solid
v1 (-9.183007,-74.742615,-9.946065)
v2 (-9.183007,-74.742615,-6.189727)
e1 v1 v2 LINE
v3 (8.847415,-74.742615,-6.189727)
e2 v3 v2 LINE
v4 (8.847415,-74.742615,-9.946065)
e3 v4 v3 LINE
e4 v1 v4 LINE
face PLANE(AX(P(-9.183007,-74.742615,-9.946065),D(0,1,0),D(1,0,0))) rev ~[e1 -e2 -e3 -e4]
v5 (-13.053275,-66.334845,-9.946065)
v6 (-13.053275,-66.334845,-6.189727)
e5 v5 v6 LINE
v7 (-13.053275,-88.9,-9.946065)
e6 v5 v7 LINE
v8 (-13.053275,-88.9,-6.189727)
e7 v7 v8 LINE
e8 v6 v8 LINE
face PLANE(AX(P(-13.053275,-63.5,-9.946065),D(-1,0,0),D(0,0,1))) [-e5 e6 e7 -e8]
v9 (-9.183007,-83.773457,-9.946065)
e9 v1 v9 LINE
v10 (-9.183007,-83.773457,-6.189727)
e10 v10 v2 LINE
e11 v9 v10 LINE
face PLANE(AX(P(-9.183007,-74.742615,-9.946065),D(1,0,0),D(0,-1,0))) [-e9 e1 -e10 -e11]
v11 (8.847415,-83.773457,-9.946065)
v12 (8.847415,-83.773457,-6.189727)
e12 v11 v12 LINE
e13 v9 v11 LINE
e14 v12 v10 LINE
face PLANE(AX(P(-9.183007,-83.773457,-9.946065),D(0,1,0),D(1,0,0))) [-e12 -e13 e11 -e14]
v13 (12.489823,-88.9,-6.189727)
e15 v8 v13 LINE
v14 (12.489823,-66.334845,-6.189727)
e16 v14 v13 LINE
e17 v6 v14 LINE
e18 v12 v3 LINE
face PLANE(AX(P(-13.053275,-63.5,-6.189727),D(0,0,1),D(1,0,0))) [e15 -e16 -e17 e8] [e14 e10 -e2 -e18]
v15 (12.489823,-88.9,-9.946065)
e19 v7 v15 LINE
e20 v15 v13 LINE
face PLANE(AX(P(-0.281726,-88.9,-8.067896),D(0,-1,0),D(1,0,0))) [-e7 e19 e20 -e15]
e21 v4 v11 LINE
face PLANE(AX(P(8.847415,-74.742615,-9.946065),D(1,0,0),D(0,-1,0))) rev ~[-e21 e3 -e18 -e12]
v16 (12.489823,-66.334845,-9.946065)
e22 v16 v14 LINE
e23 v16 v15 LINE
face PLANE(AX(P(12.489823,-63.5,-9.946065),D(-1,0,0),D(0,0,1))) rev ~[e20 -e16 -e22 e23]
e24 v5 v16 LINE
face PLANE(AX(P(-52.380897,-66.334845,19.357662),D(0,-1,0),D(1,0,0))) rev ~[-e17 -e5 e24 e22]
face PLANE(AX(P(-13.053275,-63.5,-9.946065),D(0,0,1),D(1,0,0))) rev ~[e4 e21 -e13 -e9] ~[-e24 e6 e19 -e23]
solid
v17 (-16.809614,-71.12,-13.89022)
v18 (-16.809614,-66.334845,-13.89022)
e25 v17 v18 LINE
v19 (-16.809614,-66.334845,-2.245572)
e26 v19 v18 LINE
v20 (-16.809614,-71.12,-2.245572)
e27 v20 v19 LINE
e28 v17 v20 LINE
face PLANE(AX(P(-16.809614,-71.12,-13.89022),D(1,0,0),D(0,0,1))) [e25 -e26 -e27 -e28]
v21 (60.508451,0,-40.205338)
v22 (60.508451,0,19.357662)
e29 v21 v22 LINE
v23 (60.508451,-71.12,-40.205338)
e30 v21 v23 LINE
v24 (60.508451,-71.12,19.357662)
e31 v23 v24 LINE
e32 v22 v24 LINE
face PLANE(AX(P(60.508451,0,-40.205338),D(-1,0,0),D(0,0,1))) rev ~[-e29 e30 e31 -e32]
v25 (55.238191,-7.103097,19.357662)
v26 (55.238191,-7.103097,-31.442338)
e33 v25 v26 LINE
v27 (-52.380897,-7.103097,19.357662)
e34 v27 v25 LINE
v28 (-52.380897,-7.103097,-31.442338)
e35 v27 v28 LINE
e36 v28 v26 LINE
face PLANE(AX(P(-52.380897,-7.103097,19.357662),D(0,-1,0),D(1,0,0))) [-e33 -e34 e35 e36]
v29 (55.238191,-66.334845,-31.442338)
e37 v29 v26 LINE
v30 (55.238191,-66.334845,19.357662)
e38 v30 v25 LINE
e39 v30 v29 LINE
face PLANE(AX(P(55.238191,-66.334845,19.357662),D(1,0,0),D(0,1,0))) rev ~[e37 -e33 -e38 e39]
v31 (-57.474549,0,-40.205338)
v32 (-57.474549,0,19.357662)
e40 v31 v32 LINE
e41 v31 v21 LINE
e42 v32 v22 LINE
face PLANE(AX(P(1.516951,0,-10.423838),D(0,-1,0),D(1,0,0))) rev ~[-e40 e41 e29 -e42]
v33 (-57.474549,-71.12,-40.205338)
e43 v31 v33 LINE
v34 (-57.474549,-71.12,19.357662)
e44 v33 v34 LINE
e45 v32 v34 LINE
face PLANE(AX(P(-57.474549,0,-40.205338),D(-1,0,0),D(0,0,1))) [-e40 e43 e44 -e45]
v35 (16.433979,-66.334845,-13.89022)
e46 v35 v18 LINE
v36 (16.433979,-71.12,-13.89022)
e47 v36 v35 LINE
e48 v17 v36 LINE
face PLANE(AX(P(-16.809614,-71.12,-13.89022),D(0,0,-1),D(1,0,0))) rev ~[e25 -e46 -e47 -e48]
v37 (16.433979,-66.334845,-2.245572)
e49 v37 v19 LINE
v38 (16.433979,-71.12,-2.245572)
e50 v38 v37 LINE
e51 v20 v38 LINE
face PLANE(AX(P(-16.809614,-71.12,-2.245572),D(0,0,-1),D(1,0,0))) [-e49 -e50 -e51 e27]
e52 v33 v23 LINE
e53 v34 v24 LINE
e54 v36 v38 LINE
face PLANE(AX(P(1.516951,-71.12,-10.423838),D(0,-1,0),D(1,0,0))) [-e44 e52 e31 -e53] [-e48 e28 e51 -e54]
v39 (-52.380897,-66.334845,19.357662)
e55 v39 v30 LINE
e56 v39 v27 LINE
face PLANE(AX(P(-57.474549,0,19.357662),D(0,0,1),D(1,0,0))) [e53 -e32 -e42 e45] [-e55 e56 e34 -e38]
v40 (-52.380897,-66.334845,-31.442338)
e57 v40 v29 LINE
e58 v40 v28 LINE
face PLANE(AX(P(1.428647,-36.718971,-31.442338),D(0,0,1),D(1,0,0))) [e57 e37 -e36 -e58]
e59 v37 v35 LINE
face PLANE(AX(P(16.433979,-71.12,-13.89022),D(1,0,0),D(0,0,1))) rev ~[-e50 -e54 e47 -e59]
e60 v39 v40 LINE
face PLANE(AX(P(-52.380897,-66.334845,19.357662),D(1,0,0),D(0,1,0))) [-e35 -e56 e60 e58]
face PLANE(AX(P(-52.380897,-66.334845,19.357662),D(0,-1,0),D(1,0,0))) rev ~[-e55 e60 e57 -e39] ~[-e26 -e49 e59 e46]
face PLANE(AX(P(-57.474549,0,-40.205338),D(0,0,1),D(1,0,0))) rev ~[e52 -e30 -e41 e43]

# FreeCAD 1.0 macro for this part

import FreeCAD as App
import Part
import Sketcher
from FreeCAD import Vector
Q = App.Units.Quantity


def add_polygon(sketch, points):
    """Adds a closed chain of lines whose ends are joined by coincident constraints."""
    first, n = sketch.GeometryCount, len(points)
    for a, b in zip(points, points[1:] + points[:1]):
        sketch.addGeometry(Part.LineSegment(App.Vector(*a, 0), App.Vector(*b, 0)), False)
    for i in range(n):
        sketch.addConstraint(Sketcher.Constraint("Coincident", first + i, 2, first + (i + 1) % n, 1))

doc = App.newDocument("Part")
params = doc.addObject("Spreadsheet::Sheet", "Params")
for row, (alias, value) in enumerate([
    ("sketch1_width", "4.645 in"),
    ("sketch1_height", "2.345 in"),
    ("pad1_length", "2.8 in"),
    ("pocket1_length", "0.3 in"),
    ("pad2_length", "1 in"),
    ("pocket2_length", "0.2 in"),
    ("pocket3_length", "2 in"),
], start=1):
    params.set(f"A{row}", alias)
    params.set(f"B{row}", "=" + value)
    params.setAlias(f"B{row}", alias)

body = doc.addObject("PartDesign::Body", "Body")
body.AllowCompound = True

sketch1 = body.newObject("Sketcher::SketchObject", "Sketch")
sketch1.AttachmentSupport = (doc.getObject("XZ_Plane"), [""])
sketch1.MapMode = "FlatFace"
add_polygon(sketch1, [(-57, 19), (-57, -40), (61, -40), (61, 19)])
sketch1.addConstraint([
    Sketcher.Constraint("Vertical", 0),
    Sketcher.Constraint("Horizontal", 1),
    Sketcher.Constraint("Vertical", 2),
    Sketcher.Constraint("Horizontal", 3),
    Sketcher.Constraint("DistanceX", 1, 1, 1, 2, Q("4.645 in")),
    Sketcher.Constraint("DistanceY", 0, 2, 0, 1, Q("2.345 in")),
    Sketcher.Constraint("DistanceX", 0, 2, -1, 1, Q("57.474549 mm")),
    Sketcher.Constraint("DistanceY", 0, 2, -1, 1, Q("40.205338 mm")),
])
sketch1.setExpression("Constraints[8]", "Params.sketch1_width")
sketch1.setExpression("Constraints[9]", "Params.sketch1_height")
pad1 = body.newObject("PartDesign::Pad", "Pad")
pad1.Profile = sketch1
pad1.setExpression("Length", "Params.pad1_length")

sketch2 = body.newObject("Sketcher::SketchObject", "Sketch001")
sketch2.AttachmentSupport = (doc.getObject("XZ_Plane"), [""])
sketch2.MapMode = "FlatFace"
sketch2.AttachmentOffset = App.Placement(Vector(0, 0, 2.8 * 25.4), App.Rotation())
add_polygon(sketch2, [(-17, -2), (-17, -14), (16, -14), (16, -2)])
sketch2.addConstraint([
    Sketcher.Constraint("Vertical", 0),
    Sketcher.Constraint("Horizontal", 1),
    Sketcher.Constraint("Vertical", 2),
    Sketcher.Constraint("Horizontal", 3),
    Sketcher.Constraint("DistanceY", 0, 2, 0, 1, Q("11.644649 mm")),
    Sketcher.Constraint("DistanceX", 1, 1, 1, 2, Q("33.243593 mm")),
    Sketcher.Constraint("DistanceY", 0, 2, -1, 1, Q("13.89022 mm")),
    Sketcher.Constraint("DistanceX", -1, 1, 1, 2, Q("16.433979 mm")),
])
pocket1 = body.newObject("PartDesign::Pocket", "Pocket")
pocket1.Profile = sketch2
pocket1.setExpression("Length", "Params.pocket1_length")

sketch3 = body.newObject("Sketcher::SketchObject", "Sketch002")
sketch3.AttachmentSupport = (doc.getObject("XZ_Plane"), [""])
sketch3.MapMode = "FlatFace"
sketch3.AttachmentOffset = App.Placement(Vector(0, 0, 2.5 * 25.4), App.Rotation())
add_polygon(sketch3, [(-13.1, -6.2), (-13.1, -9.9), (12.5, -9.9), (12.5, -6.2)])
sketch3.addConstraint([
    Sketcher.Constraint("Vertical", 0),
    Sketcher.Constraint("Horizontal", 1),
    Sketcher.Constraint("Vertical", 2),
    Sketcher.Constraint("Horizontal", 3),
    Sketcher.Constraint("DistanceX", 1, 1, 1, 2, Q("25.543099 mm")),
    Sketcher.Constraint("DistanceY", 0, 2, 0, 1, Q("3.756338 mm")),
    Sketcher.Constraint("DistanceX", 0, 2, -1, 1, Q("13.053275 mm")),
    Sketcher.Constraint("DistanceY", 0, 2, -1, 1, Q("9.946065 mm")),
])
pad2 = body.newObject("PartDesign::Pad", "Pad001")
pad2.Profile = sketch3
pad2.setExpression("Length", "Params.pad2_length")

sketch4 = body.newObject("Sketcher::SketchObject", "Sketch003")
sketch4.AttachmentSupport = (doc.getObject("XY_Plane"), [""])
sketch4.MapMode = "FlatFace"
sketch4.AttachmentOffset = App.Placement(Vector(0, 0, -9.946065), App.Rotation())
add_polygon(sketch4, [(-9, -84), (-9, -75), (9, -75), (9, -84)])
sketch4.addConstraint([
    Sketcher.Constraint("Vertical", 0),
    Sketcher.Constraint("Horizontal", 1),
    Sketcher.Constraint("Vertical", 2),
    Sketcher.Constraint("Horizontal", 3),
    Sketcher.Constraint("DistanceY", 0, 1, 0, 2, Q("9.030842 mm")),
    Sketcher.Constraint("DistanceX", 1, 1, 1, 2, Q("18.030422 mm")),
    Sketcher.Constraint("DistanceX", 0, 2, -1, 1, Q("9.183007 mm")),
    Sketcher.Constraint("DistanceY", 0, 2, -1, 1, Q("74.742615 mm")),
])
pocket2 = body.newObject("PartDesign::Pocket", "Pocket001")
pocket2.Profile = sketch4
pocket2.setExpression("Length", "Params.pocket2_length")
pocket2.Reversed = True

sketch5 = body.newObject("Sketcher::SketchObject", "Sketch004")
sketch5.AttachmentSupport = (doc.getObject("XY_Plane"), [""])
sketch5.MapMode = "FlatFace"
sketch5.AttachmentOffset = App.Placement(Vector(0, 0, 19.357662), App.Rotation())
add_polygon(sketch5, [(-52, -7), (-52, -66), (55, -66), (55, -7)])
sketch5.addConstraint([
    Sketcher.Constraint("Vertical", 0),
    Sketcher.Constraint("Horizontal", 1),
    Sketcher.Constraint("Vertical", 2),
    Sketcher.Constraint("Horizontal", 3),
    Sketcher.Constraint("DistanceX", 1, 1, 1, 2, Q("107.619088 mm")),
    Sketcher.Constraint("DistanceY", 0, 2, 0, 1, Q("59.231747 mm")),
    Sketcher.Constraint("DistanceX", -1, 1, 1, 2, Q("55.238191 mm")),
    Sketcher.Constraint("DistanceY", 0, 2, -1, 1, Q("66.334845 mm")),
])
pocket3 = body.newObject("PartDesign::Pocket", "Pocket002")
pocket3.Profile = sketch5
pocket3.setExpression("Length", "Params.pocket3_length")

doc.recompute()
